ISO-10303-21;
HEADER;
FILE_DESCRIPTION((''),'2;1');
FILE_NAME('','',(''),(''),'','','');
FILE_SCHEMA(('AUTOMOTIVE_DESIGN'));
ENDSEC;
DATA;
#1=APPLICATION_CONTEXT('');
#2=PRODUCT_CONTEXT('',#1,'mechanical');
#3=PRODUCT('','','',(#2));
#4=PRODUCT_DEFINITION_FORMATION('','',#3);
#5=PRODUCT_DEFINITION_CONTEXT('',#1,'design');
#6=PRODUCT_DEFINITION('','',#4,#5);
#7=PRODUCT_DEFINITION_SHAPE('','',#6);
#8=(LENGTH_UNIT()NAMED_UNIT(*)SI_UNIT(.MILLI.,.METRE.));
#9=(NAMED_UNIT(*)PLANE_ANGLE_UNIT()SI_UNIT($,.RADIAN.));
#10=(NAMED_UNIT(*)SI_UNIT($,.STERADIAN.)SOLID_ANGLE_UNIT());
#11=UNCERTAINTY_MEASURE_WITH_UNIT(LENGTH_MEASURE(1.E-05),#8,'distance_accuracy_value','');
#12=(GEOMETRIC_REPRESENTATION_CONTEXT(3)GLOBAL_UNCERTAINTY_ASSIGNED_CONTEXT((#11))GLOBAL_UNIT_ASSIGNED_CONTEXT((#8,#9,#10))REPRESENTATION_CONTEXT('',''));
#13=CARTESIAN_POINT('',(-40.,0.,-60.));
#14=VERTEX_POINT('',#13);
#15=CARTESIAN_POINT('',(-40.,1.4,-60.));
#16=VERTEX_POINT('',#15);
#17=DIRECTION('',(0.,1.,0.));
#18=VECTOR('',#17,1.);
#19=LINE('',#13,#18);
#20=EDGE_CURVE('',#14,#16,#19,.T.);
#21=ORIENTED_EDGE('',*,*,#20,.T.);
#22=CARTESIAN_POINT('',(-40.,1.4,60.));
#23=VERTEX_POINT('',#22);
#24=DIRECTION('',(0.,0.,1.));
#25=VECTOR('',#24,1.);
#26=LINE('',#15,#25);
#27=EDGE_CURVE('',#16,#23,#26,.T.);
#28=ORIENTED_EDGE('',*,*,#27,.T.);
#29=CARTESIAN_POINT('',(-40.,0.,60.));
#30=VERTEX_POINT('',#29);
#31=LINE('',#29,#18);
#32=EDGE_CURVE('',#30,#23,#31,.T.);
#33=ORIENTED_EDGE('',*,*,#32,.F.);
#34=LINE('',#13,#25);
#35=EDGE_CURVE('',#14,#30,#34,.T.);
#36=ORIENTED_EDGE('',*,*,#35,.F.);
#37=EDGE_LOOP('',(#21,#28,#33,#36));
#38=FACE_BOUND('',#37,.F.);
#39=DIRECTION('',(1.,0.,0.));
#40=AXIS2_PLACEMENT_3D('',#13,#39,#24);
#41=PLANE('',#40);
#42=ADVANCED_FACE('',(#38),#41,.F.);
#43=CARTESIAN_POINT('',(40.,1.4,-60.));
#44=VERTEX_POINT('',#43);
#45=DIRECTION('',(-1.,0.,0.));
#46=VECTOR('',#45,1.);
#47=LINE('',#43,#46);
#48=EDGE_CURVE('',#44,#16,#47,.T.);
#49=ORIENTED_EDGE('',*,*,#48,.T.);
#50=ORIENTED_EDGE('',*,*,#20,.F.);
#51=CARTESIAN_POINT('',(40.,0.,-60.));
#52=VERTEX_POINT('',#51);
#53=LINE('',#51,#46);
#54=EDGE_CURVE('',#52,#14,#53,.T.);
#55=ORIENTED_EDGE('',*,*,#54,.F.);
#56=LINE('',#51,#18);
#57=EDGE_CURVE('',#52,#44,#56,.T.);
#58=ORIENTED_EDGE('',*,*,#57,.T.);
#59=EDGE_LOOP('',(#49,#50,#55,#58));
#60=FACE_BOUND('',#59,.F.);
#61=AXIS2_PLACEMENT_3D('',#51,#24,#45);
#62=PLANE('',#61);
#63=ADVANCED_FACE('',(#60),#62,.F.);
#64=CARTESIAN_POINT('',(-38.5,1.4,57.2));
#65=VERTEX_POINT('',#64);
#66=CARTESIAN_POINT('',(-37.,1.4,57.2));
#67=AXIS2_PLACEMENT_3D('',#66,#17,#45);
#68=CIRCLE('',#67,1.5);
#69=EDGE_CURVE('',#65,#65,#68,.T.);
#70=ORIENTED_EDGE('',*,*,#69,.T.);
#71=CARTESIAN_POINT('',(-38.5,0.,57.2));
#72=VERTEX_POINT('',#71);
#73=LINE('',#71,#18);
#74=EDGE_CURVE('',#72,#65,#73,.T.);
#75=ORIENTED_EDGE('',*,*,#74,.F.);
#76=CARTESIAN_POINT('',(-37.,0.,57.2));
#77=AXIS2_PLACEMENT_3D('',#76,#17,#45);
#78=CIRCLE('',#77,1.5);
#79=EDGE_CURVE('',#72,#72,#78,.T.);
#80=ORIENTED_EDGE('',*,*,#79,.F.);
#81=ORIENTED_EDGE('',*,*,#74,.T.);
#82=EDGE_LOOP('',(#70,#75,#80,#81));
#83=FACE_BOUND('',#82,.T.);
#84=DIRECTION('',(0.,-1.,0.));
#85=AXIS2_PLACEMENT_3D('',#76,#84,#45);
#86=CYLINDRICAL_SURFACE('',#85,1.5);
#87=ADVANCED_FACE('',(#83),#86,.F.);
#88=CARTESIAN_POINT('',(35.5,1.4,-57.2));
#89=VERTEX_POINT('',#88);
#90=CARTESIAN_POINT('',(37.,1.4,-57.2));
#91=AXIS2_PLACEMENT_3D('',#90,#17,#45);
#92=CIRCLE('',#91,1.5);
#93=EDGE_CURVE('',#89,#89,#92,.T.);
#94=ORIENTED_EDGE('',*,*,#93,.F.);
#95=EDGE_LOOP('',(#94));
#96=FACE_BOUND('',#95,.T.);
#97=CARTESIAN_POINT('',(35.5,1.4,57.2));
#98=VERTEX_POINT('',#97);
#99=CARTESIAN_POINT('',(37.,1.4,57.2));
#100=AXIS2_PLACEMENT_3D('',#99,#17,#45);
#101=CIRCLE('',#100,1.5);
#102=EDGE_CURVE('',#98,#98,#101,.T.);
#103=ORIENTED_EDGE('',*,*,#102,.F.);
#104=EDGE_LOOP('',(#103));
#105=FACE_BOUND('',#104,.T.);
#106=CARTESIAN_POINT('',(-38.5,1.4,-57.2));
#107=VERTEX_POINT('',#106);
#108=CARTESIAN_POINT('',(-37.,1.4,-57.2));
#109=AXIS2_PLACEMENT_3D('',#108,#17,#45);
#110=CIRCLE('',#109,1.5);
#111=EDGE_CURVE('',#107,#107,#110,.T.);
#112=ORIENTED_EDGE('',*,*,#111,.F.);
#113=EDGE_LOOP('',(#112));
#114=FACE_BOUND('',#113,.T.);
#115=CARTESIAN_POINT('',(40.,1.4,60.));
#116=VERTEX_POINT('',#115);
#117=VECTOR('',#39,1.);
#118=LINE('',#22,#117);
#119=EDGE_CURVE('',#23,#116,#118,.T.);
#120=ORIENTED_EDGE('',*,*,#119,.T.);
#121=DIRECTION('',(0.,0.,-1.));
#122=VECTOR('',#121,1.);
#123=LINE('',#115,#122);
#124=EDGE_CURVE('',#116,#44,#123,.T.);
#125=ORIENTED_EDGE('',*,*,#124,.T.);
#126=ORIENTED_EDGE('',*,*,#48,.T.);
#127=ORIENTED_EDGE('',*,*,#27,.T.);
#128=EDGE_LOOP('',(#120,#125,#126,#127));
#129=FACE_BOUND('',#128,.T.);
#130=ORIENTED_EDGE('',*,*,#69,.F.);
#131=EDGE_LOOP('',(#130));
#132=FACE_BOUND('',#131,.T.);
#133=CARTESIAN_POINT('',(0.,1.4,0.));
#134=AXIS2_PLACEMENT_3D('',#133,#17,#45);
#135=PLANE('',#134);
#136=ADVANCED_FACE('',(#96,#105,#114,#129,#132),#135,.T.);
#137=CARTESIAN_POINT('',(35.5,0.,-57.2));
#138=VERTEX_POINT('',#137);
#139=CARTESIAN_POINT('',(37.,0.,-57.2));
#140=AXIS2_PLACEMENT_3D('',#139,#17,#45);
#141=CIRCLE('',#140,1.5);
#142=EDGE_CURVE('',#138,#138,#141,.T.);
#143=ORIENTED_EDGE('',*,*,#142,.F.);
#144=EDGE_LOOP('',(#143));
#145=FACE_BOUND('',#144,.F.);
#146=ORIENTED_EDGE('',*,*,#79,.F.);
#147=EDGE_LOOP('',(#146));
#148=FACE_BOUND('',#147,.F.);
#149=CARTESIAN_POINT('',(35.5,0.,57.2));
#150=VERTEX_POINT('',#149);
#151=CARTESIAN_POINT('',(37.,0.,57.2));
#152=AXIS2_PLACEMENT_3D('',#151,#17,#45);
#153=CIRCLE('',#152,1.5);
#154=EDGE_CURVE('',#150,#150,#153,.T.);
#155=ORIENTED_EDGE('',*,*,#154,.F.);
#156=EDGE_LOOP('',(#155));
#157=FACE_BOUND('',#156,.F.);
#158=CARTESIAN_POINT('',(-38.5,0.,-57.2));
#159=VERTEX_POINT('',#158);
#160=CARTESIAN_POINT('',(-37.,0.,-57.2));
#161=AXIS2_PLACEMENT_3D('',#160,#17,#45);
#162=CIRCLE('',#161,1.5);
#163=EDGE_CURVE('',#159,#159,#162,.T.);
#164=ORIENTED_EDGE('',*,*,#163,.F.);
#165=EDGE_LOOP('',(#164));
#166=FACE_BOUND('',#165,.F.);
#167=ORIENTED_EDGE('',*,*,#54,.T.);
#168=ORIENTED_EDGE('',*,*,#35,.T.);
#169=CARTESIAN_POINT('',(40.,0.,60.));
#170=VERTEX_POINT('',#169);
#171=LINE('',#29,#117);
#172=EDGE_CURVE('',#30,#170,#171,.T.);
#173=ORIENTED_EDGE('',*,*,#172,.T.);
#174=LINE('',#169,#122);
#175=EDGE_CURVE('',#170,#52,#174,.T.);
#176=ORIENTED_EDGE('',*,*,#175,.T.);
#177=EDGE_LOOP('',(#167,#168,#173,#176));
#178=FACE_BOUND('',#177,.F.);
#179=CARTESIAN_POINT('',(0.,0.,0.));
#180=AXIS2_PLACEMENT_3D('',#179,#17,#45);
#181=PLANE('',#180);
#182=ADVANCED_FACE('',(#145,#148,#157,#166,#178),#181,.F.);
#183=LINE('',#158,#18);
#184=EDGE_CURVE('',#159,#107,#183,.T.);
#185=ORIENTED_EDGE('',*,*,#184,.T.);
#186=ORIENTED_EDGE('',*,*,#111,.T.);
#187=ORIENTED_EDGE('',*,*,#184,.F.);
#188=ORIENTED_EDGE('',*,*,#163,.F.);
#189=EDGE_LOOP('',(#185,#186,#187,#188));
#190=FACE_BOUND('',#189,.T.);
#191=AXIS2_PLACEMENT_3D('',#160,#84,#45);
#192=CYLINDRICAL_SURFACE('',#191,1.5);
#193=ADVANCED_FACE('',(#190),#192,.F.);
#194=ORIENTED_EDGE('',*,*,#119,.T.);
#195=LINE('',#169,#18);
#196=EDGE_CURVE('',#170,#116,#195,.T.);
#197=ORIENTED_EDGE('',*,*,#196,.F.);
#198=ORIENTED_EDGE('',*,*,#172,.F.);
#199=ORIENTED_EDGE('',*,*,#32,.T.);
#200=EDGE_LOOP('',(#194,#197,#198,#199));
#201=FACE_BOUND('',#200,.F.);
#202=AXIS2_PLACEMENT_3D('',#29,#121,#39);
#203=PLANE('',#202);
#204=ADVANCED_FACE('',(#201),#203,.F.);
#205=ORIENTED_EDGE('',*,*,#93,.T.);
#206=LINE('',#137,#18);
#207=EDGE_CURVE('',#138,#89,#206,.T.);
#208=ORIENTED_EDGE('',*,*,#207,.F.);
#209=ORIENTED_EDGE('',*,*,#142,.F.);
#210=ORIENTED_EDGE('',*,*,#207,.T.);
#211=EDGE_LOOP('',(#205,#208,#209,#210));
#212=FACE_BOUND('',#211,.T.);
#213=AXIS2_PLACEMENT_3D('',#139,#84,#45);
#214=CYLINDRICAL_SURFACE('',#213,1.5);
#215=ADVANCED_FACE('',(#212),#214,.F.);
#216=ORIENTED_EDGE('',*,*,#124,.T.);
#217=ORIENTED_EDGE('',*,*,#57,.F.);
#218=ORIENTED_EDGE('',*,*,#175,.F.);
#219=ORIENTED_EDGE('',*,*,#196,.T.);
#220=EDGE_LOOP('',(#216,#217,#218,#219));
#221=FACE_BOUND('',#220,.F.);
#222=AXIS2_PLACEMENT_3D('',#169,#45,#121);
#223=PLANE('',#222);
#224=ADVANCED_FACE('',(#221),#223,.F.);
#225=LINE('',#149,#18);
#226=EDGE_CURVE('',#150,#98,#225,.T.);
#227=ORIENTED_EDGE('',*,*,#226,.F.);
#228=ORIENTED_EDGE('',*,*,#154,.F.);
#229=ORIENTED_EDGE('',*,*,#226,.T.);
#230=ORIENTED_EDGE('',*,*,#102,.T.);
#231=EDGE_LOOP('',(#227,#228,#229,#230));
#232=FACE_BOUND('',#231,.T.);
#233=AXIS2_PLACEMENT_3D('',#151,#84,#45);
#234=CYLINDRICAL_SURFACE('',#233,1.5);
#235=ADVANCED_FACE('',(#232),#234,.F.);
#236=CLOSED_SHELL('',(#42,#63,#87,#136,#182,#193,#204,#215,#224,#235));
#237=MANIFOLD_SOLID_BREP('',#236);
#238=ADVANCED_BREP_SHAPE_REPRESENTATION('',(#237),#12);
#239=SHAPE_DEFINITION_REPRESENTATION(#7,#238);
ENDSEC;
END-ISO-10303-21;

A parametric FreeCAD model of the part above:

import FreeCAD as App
import Part
import Sketcher

V = App.Vector
Q = App.Units.Quantity


def add_polygon(sketch, points):
    """Adds a closed chain of lines whose ends are joined by coincident constraints."""
    first, n = sketch.GeometryCount, len(points)
    for a, b in zip(points, points[1:] + points[:1]):
        sketch.addGeometry(Part.LineSegment(App.Vector(*a, 0), App.Vector(*b, 0)), False)
    for i in range(n):
        sketch.addConstraint(Sketcher.Constraint("Coincident", first + i, 2, first + (i + 1) % n, 1))

doc = App.newDocument("Part")
params = doc.addObject("Spreadsheet::Sheet", "Params")
for row, (alias, value) in enumerate([
    ("sketch1_diameter", "3 mm"),
    ("sketch1_width", "80 mm"),
    ("sketch1_height", "120 mm"),
    ("pad1_length", "1.4 mm"),
], start=1):
    params.set(f"A{row}", alias)
    params.set(f"B{row}", "=" + value)
    params.setAlias(f"B{row}", alias)

body = doc.addObject("PartDesign::Body", "Body")

sketch1 = body.newObject("Sketcher::SketchObject", "Sketch")
sketch1.AttachmentSupport = (doc.getObject("XZ_Plane"), [""])
sketch1.MapMode = "FlatFace"
add_polygon(sketch1, [(-40, -60), (-40, 60), (40, 60), (40, -60)])
sketch1.addGeometry(Part.Circle(V(37, -57.2, 0), V(0, 0, 1), 1.5), False)
sketch1.addGeometry(Part.Circle(V(-37, -57.2, 0), V(0, 0, 1), 1.5), False)
sketch1.addGeometry(Part.Circle(V(37, 57.2, 0), V(0, 0, 1), 1.5), False)
sketch1.addGeometry(Part.Circle(V(-37, 57.2, 0), V(0, 0, 1), 1.5), False)
sketch1.addConstraint(Sketcher.Constraint("Vertical", 0))
sketch1.addConstraint(Sketcher.Constraint("Horizontal", 1))
sketch1.addConstraint(Sketcher.Constraint("Vertical", 2))
sketch1.addConstraint(Sketcher.Constraint("Horizontal", 3))
sketch1.addConstraint(Sketcher.Constraint("Equal", 4, 5))
sketch1.addConstraint(Sketcher.Constraint("Equal", 5, 6))
sketch1.addConstraint(Sketcher.Constraint("Equal", 6, 7))
sketch1.addConstraint(Sketcher.Constraint("Symmetric", 5, 3, 6, 3, -1, 1))
sketch1.addConstraint(Sketcher.Constraint("Symmetric", 4, 3, 7, 3, -1, 1))
sketch1.addConstraint(Sketcher.Constraint("Symmetric", 0, 2, 2, 2, -1, 1))
sketch1.addConstraint(Sketcher.Constraint("Symmetric", 4, 3, 5, 3, -2))
sketch1.addConstraint(Sketcher.Constraint("Diameter", 4, Q("3 mm")))
sketch1.addConstraint(Sketcher.Constraint("DistanceX", 1, 1, 1, 2, Q("80 mm")))
sketch1.addConstraint(Sketcher.Constraint("DistanceY", 0, 1, 0, 2, Q("120 mm")))
sketch1.addConstraint(Sketcher.Constraint("DistanceX", 0, 2, 7, 3, Q("3 mm")))
sketch1.addConstraint(Sketcher.Constraint("DistanceY", 4, 3, -1, 1, Q("57.2 mm")))
sketch1.setExpression("Constraints[15]", "Params.sketch1_diameter")
sketch1.setExpression("Constraints[16]", "Params.sketch1_width")
sketch1.setExpression("Constraints[17]", "Params.sketch1_height")
pad1 = body.newObject("PartDesign::Pad", "Pad")
pad1.Profile = sketch1
pad1.setExpression("Length", "Params.pad1_length")
pad1.Reversed = True

doc.recompute()
